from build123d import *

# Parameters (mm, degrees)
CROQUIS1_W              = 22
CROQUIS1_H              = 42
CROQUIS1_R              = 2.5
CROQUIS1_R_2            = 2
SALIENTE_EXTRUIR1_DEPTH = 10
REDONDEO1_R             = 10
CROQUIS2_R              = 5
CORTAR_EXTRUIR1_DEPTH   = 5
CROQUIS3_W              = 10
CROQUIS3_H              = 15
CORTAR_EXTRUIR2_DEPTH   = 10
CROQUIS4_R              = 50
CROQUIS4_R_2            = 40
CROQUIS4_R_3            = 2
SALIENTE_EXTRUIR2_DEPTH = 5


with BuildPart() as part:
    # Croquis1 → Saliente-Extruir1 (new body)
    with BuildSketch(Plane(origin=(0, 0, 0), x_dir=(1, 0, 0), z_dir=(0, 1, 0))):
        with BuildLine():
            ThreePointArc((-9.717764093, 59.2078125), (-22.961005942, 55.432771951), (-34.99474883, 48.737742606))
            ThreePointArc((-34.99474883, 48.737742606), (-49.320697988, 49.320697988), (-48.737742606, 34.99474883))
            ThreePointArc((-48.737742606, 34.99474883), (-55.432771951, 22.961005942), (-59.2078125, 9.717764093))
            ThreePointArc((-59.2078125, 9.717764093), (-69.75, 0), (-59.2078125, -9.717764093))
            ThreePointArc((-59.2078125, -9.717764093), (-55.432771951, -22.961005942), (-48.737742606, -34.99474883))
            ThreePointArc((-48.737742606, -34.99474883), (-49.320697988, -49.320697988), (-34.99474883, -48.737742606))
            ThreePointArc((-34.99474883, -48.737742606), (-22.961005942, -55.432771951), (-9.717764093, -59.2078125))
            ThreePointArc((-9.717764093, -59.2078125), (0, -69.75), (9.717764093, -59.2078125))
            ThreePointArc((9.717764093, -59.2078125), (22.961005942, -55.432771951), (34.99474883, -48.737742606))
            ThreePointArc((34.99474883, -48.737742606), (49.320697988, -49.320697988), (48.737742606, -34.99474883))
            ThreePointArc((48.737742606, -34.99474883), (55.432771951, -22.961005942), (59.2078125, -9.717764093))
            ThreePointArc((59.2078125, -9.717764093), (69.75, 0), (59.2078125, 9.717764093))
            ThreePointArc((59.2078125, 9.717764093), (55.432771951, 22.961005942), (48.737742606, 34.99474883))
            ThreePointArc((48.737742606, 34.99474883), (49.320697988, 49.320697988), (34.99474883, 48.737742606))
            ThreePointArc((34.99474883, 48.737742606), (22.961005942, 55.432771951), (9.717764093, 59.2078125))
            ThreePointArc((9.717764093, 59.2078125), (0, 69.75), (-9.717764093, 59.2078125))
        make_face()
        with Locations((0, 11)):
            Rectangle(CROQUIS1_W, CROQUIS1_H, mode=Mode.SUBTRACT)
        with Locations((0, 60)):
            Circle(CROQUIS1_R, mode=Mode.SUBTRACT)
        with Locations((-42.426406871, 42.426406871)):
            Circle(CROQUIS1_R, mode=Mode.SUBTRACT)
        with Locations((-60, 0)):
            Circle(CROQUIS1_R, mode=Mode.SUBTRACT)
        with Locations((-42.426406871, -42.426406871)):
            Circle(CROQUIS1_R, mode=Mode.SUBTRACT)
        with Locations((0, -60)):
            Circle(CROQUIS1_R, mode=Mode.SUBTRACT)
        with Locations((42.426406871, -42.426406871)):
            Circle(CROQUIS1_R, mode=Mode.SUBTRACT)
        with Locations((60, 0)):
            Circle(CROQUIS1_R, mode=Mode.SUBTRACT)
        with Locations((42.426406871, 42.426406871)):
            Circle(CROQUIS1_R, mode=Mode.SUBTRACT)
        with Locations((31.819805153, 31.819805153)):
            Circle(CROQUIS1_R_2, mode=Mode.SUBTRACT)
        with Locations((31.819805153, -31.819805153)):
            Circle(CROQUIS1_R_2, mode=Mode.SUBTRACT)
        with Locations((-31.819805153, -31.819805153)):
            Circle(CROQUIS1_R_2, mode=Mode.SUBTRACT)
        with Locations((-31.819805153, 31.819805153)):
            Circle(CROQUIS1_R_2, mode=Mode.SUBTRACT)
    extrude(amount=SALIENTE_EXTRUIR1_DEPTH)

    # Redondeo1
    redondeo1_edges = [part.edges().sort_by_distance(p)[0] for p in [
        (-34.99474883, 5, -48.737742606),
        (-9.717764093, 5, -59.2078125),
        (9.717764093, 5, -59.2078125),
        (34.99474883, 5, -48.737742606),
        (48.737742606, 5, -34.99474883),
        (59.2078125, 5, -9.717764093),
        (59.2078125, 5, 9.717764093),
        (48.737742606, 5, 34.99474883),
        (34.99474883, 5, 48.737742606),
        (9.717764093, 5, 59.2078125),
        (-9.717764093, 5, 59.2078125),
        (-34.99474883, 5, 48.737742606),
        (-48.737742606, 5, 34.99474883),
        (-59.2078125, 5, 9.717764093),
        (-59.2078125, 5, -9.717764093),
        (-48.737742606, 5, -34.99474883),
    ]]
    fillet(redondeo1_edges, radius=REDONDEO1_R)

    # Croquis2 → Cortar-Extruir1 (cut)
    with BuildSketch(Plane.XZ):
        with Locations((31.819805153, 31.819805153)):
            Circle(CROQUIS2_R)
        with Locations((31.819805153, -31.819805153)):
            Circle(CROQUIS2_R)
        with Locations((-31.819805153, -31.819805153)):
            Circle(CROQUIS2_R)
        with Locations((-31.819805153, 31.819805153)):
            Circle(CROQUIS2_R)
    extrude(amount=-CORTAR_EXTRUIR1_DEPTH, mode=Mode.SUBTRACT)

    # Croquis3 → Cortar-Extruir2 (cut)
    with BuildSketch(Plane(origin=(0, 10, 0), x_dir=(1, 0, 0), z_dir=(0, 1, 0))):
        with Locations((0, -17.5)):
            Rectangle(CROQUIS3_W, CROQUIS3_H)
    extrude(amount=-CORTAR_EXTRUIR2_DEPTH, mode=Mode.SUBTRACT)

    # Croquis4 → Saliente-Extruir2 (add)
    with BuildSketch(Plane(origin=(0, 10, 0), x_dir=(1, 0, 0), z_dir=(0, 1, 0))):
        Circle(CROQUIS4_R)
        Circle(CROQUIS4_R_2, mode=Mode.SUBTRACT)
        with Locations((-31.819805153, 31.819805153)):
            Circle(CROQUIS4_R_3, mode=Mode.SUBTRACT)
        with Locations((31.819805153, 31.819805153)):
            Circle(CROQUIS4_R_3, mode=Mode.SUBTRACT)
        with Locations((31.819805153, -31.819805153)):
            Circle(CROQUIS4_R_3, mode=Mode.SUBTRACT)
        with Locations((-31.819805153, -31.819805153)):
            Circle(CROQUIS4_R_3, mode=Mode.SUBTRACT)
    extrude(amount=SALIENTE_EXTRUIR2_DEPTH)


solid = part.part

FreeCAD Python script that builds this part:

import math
import FreeCAD as App
import Part
import Sketcher


def edges_at(feature, points):
    """Names of the edges that pass closest to the given points."""
    edges = feature.Shape.Edges
    near = lambda p: min(range(len(edges)), key=lambda i: edges[i].distToShape(Part.Vertex(*p))[0])
    return sorted({f"Edge{near(p) + 1}" for p in points})

doc = App.newDocument("Part")
body = doc.addObject("PartDesign::Body", "Body")

# Sketch on XZ plane
sketch1 = body.newObject("Sketcher::SketchObject", "Sketch")
sketch1.AttachmentSupport = (doc.getObject("XZ_Plane"), [""])
sketch1.MapMode = "FlatFace"
sketch1.addGeometry([
    Part.ArcOfCircle(Part.Circle(App.Vector(0, 0, 0), App.Vector(0, 0, 1), 60), math.radians(-126), math.radians(-99)),  # 0
    Part.ArcOfCircle(Part.Circle(App.Vector(-42.4, -42.4, 0), App.Vector(0, 0, 1), 9.8), math.radians(130), math.radians(320)),  # 1
    Part.ArcOfCircle(Part.Circle(App.Vector(0, 0, 0), App.Vector(0, 0, 1), 60), math.radians(-171), math.radians(-144)),  # 2
    Part.ArcOfCircle(Part.Circle(App.Vector(-60, 0, 0), App.Vector(0, 0, 1), 9.8), math.radians(85), math.radians(275)),  # 3
    Part.ArcOfCircle(Part.Circle(App.Vector(0, 0, 0), App.Vector(0, 0, 1), 60), math.radians(144), math.radians(171)),  # 4
    Part.ArcOfCircle(Part.Circle(App.Vector(-42.4, 42.4, 0), App.Vector(0, 0, 1), 9.8), math.radians(40), math.radians(230)),  # 5
    Part.ArcOfCircle(Part.Circle(App.Vector(0, 0, 0), App.Vector(0, 0, 1), 60), math.radians(99), math.radians(126)),  # 6
    Part.ArcOfCircle(Part.Circle(App.Vector(0, 60, 0), App.Vector(0, 0, 1), 9.8), math.radians(-5), math.radians(185)),  # 7
    Part.ArcOfCircle(Part.Circle(App.Vector(0, 0, 0), App.Vector(0, 0, 1), 60), math.radians(54), math.radians(81)),  # 8
    Part.ArcOfCircle(Part.Circle(App.Vector(42.4, 42.4, 0), App.Vector(0, 0, 1), 9.8), math.radians(-50), math.radians(140)),  # 9
    Part.ArcOfCircle(Part.Circle(App.Vector(0, 0, 0), App.Vector(0, 0, 1), 60), math.radians(9), math.radians(36)),  # 10
    Part.ArcOfCircle(Part.Circle(App.Vector(60, 0, 0), App.Vector(0, 0, 1), 9.8), math.radians(-95), math.radians(95)),  # 11
    Part.ArcOfCircle(Part.Circle(App.Vector(0, 0, 0), App.Vector(0, 0, 1), 60), math.radians(-36), math.radians(-9)),  # 12
    Part.ArcOfCircle(Part.Circle(App.Vector(42.4, -42.4, 0), App.Vector(0, 0, 1), 9.8), math.radians(-140), math.radians(50)),  # 13
    Part.ArcOfCircle(Part.Circle(App.Vector(0, 0, 0), App.Vector(0, 0, 1), 60), math.radians(-81), math.radians(-54)),  # 14
    Part.ArcOfCircle(Part.Circle(App.Vector(0, -60, 0), App.Vector(0, 0, 1), 9.8), math.radians(175), math.radians(365)),  # 15
    Part.Circle(App.Vector(-42.4, 42.4, 0), App.Vector(0, 0, 1), 2.5),  # 16
    Part.Circle(App.Vector(-31.8, 31.8, 0), App.Vector(0, 0, 1), 2),  # 17
    Part.Circle(App.Vector(0, 60, 0), App.Vector(0, 0, 1), 2.5),  # 18
    Part.Circle(App.Vector(42.4, 42.4, 0), App.Vector(0, 0, 1), 2.5),  # 19
    Part.Circle(App.Vector(31.8, 31.8, 0), App.Vector(0, 0, 1), 2),  # 20
    Part.Circle(App.Vector(-60, 0, 0), App.Vector(0, 0, 1), 2.5),  # 21
    Part.Circle(App.Vector(-31.8, -31.8, 0), App.Vector(0, 0, 1), 2),  # 22
    Part.Circle(App.Vector(-42.4, -42.4, 0), App.Vector(0, 0, 1), 2.5),  # 23
    Part.LineSegment(App.Vector(11, 10, 0), App.Vector(-11, 10, 0)),  # 24
    Part.LineSegment(App.Vector(-11, 10, 0), App.Vector(-11, -32, 0)),  # 25
    Part.LineSegment(App.Vector(-11, -32, 0), App.Vector(11, -32, 0)),  # 26
    Part.LineSegment(App.Vector(11, -32, 0), App.Vector(11, 10, 0)),  # 27
    Part.Circle(App.Vector(60, 0, 0), App.Vector(0, 0, 1), 2.5),  # 28
    Part.Circle(App.Vector(0, -60, 0), App.Vector(0, 0, 1), 2.5),  # 29
    Part.Circle(App.Vector(31.8, -31.8, 0), App.Vector(0, 0, 1), 2),  # 30
    Part.Circle(App.Vector(42.4, -42.4, 0), App.Vector(0, 0, 1), 2.5),  # 31
], False)
sketch1.addConstraint([
    Sketcher.Constraint("Coincident", 0, 1, 1, 2),
    Sketcher.Constraint("Coincident", 1, 1, 2, 2),
    Sketcher.Constraint("Coincident", 2, 1, 3, 2),
    Sketcher.Constraint("Coincident", 3, 1, 4, 2),
    Sketcher.Constraint("Coincident", 4, 1, 5, 2),
    Sketcher.Constraint("Coincident", 5, 1, 6, 2),
    Sketcher.Constraint("Coincident", 6, 1, 7, 2),
    Sketcher.Constraint("Coincident", 7, 1, 8, 2),
    Sketcher.Constraint("Coincident", 8, 1, 9, 2),
    Sketcher.Constraint("Coincident", 9, 1, 10, 2),
    Sketcher.Constraint("Coincident", 10, 1, 11, 2),
    Sketcher.Constraint("Coincident", 11, 1, 12, 2),
    Sketcher.Constraint("Coincident", 12, 1, 13, 2),
    Sketcher.Constraint("Coincident", 13, 1, 14, 2),
    Sketcher.Constraint("Coincident", 14, 1, 15, 2),
    Sketcher.Constraint("Coincident", 15, 1, 0, 2),
    Sketcher.Constraint("Coincident", 24, 2, 25, 1),
    Sketcher.Constraint("Coincident", 25, 2, 26, 1),
    Sketcher.Constraint("Coincident", 26, 2, 27, 1),
    Sketcher.Constraint("Coincident", 27, 2, 24, 1),
    Sketcher.Constraint("Horizontal", 24),
    Sketcher.Constraint("Vertical", 25),
    Sketcher.Constraint("Horizontal", 26),
    Sketcher.Constraint("Vertical", 27),
    Sketcher.Constraint("Coincident", 0, 3, -1, 1),
    Sketcher.Constraint("Coincident", 2, 3, -1, 1),
    Sketcher.Constraint("Coincident", 4, 3, -1, 1),
    Sketcher.Constraint("Coincident", 6, 3, -1, 1),
    Sketcher.Constraint("Coincident", 8, 3, -1, 1),
    Sketcher.Constraint("Coincident", 10, 3, -1, 1),
    Sketcher.Constraint("Coincident", 12, 3, -1, 1),
    Sketcher.Constraint("Coincident", 14, 3, -1, 1),
    Sketcher.Constraint("Coincident", 16, 3, 5, 3),
    Sketcher.Constraint("Coincident", 18, 3, 7, 3),
    Sketcher.Constraint("Coincident", 19, 3, 9, 3),
    Sketcher.Constraint("Coincident", 21, 3, 3, 3),
    Sketcher.Constraint("Coincident", 23, 3, 1, 3),
    Sketcher.Constraint("Coincident", 28, 3, 11, 3),
    Sketcher.Constraint("Coincident", 29, 3, 15, 3),
    Sketcher.Constraint("Coincident", 31, 3, 13, 3),
    Sketcher.Constraint("Equal", 0, 2),
    Sketcher.Constraint("Equal", 1, 3),
    Sketcher.Constraint("Equal", 2, 4),
    Sketcher.Constraint("Equal", 3, 5),
    Sketcher.Constraint("Equal", 4, 6),
    Sketcher.Constraint("Equal", 5, 7),
    Sketcher.Constraint("Equal", 6, 8),
    Sketcher.Constraint("Equal", 7, 9),
    Sketcher.Constraint("Equal", 8, 10),
    Sketcher.Constraint("Equal", 9, 11),
    Sketcher.Constraint("Equal", 10, 12),
    Sketcher.Constraint("Equal", 11, 13),
    Sketcher.Constraint("Equal", 12, 14),
    Sketcher.Constraint("Equal", 13, 15),
    Sketcher.Constraint("Equal", 16, 18),
    Sketcher.Constraint("Equal", 18, 19),
    Sketcher.Constraint("Equal", 17, 20),
    Sketcher.Constraint("Equal", 19, 21),
    Sketcher.Constraint("Equal", 20, 22),
    Sketcher.Constraint("Equal", 21, 23),
    Sketcher.Constraint("Equal", 23, 28),
    Sketcher.Constraint("Equal", 28, 29),
    Sketcher.Constraint("Equal", 22, 30),
    Sketcher.Constraint("Equal", 29, 31),
    Sketcher.Constraint("Symmetric", 1, 3, 9, 3, -1, 1),
    Sketcher.Constraint("Symmetric", 3, 3, 11, 3, -1, 1),
    Sketcher.Constraint("Symmetric", 5, 3, 13, 3, -1, 1),
    Sketcher.Constraint("Symmetric", 7, 3, 15, 3, -1, 1),
    Sketcher.Constraint("Symmetric", 20, 3, 22, 3, -1, 1),
    Sketcher.Constraint("Symmetric", 17, 3, 30, 3, -1, 1),
    Sketcher.Constraint("Symmetric", 5, 3, 9, 3, -2),
    Sketcher.Constraint("Symmetric", 17, 3, 20, 3, -2),
    Sketcher.Constraint("PointOnObject", 3, 3, -1),
    Sketcher.Constraint("PointOnObject", 7, 3, -2),
    Sketcher.Constraint("Diameter", 16, 5.0),
    Sketcher.Constraint("Diameter", 17, 4.0),
    Sketcher.Constraint("Radius", 0, 60.0),
    Sketcher.Constraint("DistanceX", 24, 2, 24, 1, 22.0),
    Sketcher.Constraint("DistanceY", 25, 2, 25, 1, 42.0),
    Sketcher.Constraint("Radius", 1, 9.75),
    Sketcher.Constraint("DistanceX", 3, 3, -1, 1, 60.0),
    Sketcher.Constraint("DistanceY", -1, 1, 7, 3, 60.0),
    Sketcher.Constraint("DistanceX", 24, 2, -1, 1, 11.0),
    Sketcher.Constraint("DistanceY", -1, 1, 24, 2, 10.0),
    Sketcher.Constraint("DistanceX", 5, 3, 17, 3, 10.606602),
    Sketcher.Constraint("DistanceY", 17, 3, 5, 3, 10.606602),
    Sketcher.Constraint("DistanceX", 0, 1, -1, 1, 34.994749),
    Sketcher.Constraint("DistanceY", 1, 1, -1, 1, 34.994749),
])
pad1 = body.newObject("PartDesign::Pad", "Pad")
pad1.Profile = sketch1
pad1.Length = 10
pad1.Reversed = True
doc.recompute()

fillet = body.newObject("PartDesign::Fillet", "Fillet")
fillet.Base = (pad1, edges_at(pad1, [
    (-34.995, 5, -48.738),
    (-9.718, 5, -59.208),
    (9.718, 5, -59.208),
    (34.995, 5, -48.738),
    (48.738, 5, -34.995),
    (59.208, 5, -9.718),
    (59.208, 5, 9.718),
    (48.738, 5, 34.995),
    (34.995, 5, 48.738),
    (9.718, 5, 59.208),
    (-9.718, 5, 59.208),
    (-34.995, 5, 48.738),
    (-48.738, 5, 34.995),
    (-59.208, 5, 9.718),
    (-59.208, 5, -9.718),
    (-48.738, 5, -34.995),
]))
fillet.Radius = 10

# Sketch on XZ plane
sketch2 = body.newObject("Sketcher::SketchObject", "Sketch001")
sketch2.AttachmentSupport = (doc.getObject("XZ_Plane"), [""])
sketch2.MapMode = "FlatFace"
sketch2.addGeometry([
    Part.Circle(App.Vector(32, 32, 0), App.Vector(0, 0, 1), 5),
    Part.Circle(App.Vector(32, -32, 0), App.Vector(0, 0, 1), 5),
    Part.Circle(App.Vector(-32, -32, 0), App.Vector(0, 0, 1), 5),
    Part.Circle(App.Vector(-32, 32, 0), App.Vector(0, 0, 1), 5),
], False)
sketch2.addConstraint([
    Sketcher.Constraint("Equal", 0, 1),
    Sketcher.Constraint("Equal", 1, 2),
    Sketcher.Constraint("Equal", 2, 3),
    Sketcher.Constraint("Symmetric", 0, 3, 2, 3, -1, 1),
    Sketcher.Constraint("Symmetric", 1, 3, 3, 3, -1, 1),
    Sketcher.Constraint("Symmetric", 1, 3, 2, 3, -2),
    Sketcher.Constraint("Diameter", 0, 10.0),
    Sketcher.Constraint("DistanceY", 1, 3, 0, 3, 63.63961),
    Sketcher.Constraint("DistanceX", 2, 3, 1, 3, 63.63961),
])
pocket1 = body.newObject("PartDesign::Pocket", "Pocket")
pocket1.Profile = sketch2
pocket1.Length = 5

# Sketch on XZ plane
sketch3 = body.newObject("Sketcher::SketchObject", "Sketch002")
sketch3.AttachmentSupport = (doc.getObject("XZ_Plane"), [""])
sketch3.MapMode = "FlatFace"
sketch3.AttachmentOffset = App.Placement(App.Vector(0, 0, -10), App.Rotation())
sketch3.addGeometry([
    Part.LineSegment(App.Vector(-5, 10, 0), App.Vector(-5, 25, 0)),
    Part.LineSegment(App.Vector(-5, 25, 0), App.Vector(5, 25, 0)),
    Part.LineSegment(App.Vector(5, 25, 0), App.Vector(5, 10, 0)),
    Part.LineSegment(App.Vector(5, 10, 0), App.Vector(-5, 10, 0)),
], False)
sketch3.addConstraint([
    Sketcher.Constraint("Coincident", 0, 2, 1, 1),
    Sketcher.Constraint("Coincident", 1, 2, 2, 1),
    Sketcher.Constraint("Coincident", 2, 2, 3, 1),
    Sketcher.Constraint("Coincident", 3, 2, 0, 1),
    Sketcher.Constraint("Vertical", 0),
    Sketcher.Constraint("Horizontal", 1),
    Sketcher.Constraint("Vertical", 2),
    Sketcher.Constraint("Horizontal", 3),
    Sketcher.Constraint("DistanceX", 1, 1, 1, 2, 10.0),
    Sketcher.Constraint("DistanceY", 0, 1, 0, 2, 15.0),
    Sketcher.Constraint("DistanceX", 0, 2, -1, 1, 5.0),
    Sketcher.Constraint("DistanceY", -1, 1, 0, 2, 25.0),
])
pocket2 = body.newObject("PartDesign::Pocket", "Pocket001")
pocket2.Profile = sketch3
pocket2.Length = 10
pocket2.Reversed = True

# Sketch on XZ plane
sketch4 = body.newObject("Sketcher::SketchObject", "Sketch003")
sketch4.AttachmentSupport = (doc.getObject("XZ_Plane"), [""])
sketch4.MapMode = "FlatFace"
sketch4.AttachmentOffset = App.Placement(App.Vector(0, 0, -10), App.Rotation())
sketch4.addGeometry([
    Part.Circle(App.Vector(0, 0, 0), App.Vector(0, 0, 1), 50),  # 0
    Part.Circle(App.Vector(-31.8, 31.8, 0), App.Vector(0, 0, 1), 2),  # 1
    Part.Circle(App.Vector(31.8, 31.8, 0), App.Vector(0, 0, 1), 2),  # 2
    Part.Circle(App.Vector(-31.8, -31.8, 0), App.Vector(0, 0, 1), 2),  # 3
    Part.Circle(App.Vector(0, 0, 0), App.Vector(0, 0, 1), 40),  # 4
    Part.Circle(App.Vector(31.8, -31.8, 0), App.Vector(0, 0, 1), 2),  # 5
], False)
sketch4.addConstraint([
    Sketcher.Constraint("Coincident", 0, 3, -1, 1),
    Sketcher.Constraint("Coincident", 4, 3, -1, 1),
    Sketcher.Constraint("Equal", 1, 2),
    Sketcher.Constraint("Equal", 2, 3),
    Sketcher.Constraint("Equal", 3, 5),
    Sketcher.Constraint("Symmetric", 2, 3, 3, 3, -1, 1),
    Sketcher.Constraint("Symmetric", 1, 3, 5, 3, -1, 1),
    Sketcher.Constraint("Symmetric", 1, 3, 2, 3, -2),
    Sketcher.Constraint("Diameter", 0, 100.0),
    Sketcher.Constraint("Diameter", 1, 4.0),
    Sketcher.Constraint("Diameter", 4, 80.0),
    Sketcher.Constraint("DistanceX", 1, 3, 2, 3, 63.63961),
    Sketcher.Constraint("DistanceY", 3, 3, 1, 3, 63.63961),
])
pad2 = body.newObject("PartDesign::Pad", "Pad001")
pad2.Profile = sketch4
pad2.Length = 5
pad2.Reversed = True

doc.recompute()
